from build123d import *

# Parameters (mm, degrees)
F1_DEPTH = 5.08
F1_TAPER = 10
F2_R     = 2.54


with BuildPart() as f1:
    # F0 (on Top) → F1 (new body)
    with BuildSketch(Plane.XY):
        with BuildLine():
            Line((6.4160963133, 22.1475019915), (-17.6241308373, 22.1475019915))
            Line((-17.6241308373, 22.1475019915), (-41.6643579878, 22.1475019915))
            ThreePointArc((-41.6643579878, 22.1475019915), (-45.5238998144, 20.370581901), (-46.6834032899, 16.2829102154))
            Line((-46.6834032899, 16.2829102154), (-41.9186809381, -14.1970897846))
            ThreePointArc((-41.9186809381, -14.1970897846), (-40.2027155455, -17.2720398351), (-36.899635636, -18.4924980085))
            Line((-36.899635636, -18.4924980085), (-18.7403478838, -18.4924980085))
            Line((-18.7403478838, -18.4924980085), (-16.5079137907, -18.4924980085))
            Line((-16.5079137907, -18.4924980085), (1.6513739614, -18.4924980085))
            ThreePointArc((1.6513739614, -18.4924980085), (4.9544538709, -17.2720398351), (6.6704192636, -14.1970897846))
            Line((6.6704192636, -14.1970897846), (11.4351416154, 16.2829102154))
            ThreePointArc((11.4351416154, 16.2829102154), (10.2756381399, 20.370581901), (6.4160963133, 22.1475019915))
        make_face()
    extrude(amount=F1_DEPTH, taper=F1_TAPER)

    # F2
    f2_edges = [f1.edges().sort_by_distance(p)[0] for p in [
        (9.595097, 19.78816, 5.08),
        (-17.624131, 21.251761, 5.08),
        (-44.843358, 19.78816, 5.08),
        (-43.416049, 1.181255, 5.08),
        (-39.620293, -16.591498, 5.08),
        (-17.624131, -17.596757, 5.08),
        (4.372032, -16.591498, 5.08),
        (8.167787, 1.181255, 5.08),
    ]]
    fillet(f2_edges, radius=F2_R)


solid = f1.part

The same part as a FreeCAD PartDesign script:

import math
import FreeCAD as App
import Part
import Sketcher

V = App.Vector
Q = App.Units.Quantity


def edges_at(feature, points):
    """Names of the edges that pass closest to the given points."""
    edges = feature.Shape.Edges
    near = lambda p: min(range(len(edges)), key=lambda i: edges[i].distToShape(Part.Vertex(*p))[0])
    return sorted({f"Edge{near(p) + 1}" for p in points})

doc = App.newDocument("Part")
body = doc.addObject("PartDesign::Body", "Body")

sketch1 = body.newObject("Sketcher::SketchObject", "Sketch")
sketch1.AttachmentSupport = (doc.getObject("XY_Plane"), [""])
sketch1.MapMode = "FlatFace"
sketch1.addGeometry([
    Part.LineSegment(V(6, 22, 0), V(-42, 22, 0)),
    Part.ArcOfCircle(Part.Circle(V(-42, 17, 0), V(0, 0, 1), 5), math.radians(90), math.radians(189)),
    Part.LineSegment(V(-47, 16, 0), V(-42, -14, 0)),
    Part.ArcOfCircle(Part.Circle(V(-37, -13, 0), V(0, 0, 1), 5), math.radians(-171), math.radians(-90)),
    Part.LineSegment(V(-37, -18, 0), V(2, -18, 0)),
    Part.ArcOfCircle(Part.Circle(V(2, -13, 0), V(0, 0, 1), 5), math.radians(-90), math.radians(-9)),
    Part.LineSegment(V(7, -14, 0), V(11, 16, 0)),
    Part.ArcOfCircle(Part.Circle(V(6, 17, 0), V(0, 0, 1), 5), math.radians(-9), math.radians(90)),
], False)
sketch1.addConstraint([
    Sketcher.Constraint("Tangent", 0, 2, 1, 1),
    Sketcher.Constraint("Tangent", 1, 2, 2, 1),
    Sketcher.Constraint("Tangent", 2, 2, 3, 1),
    Sketcher.Constraint("Tangent", 3, 2, 4, 1),
    Sketcher.Constraint("Tangent", 4, 2, 5, 1),
    Sketcher.Constraint("Tangent", 5, 2, 6, 1),
    Sketcher.Constraint("Tangent", 6, 2, 7, 1),
    Sketcher.Constraint("Tangent", 7, 2, 0, 1),
    Sketcher.Constraint("Horizontal", 0),
    Sketcher.Constraint("Horizontal", 4),
    Sketcher.Constraint("Equal", 1, 3),
    Sketcher.Constraint("Equal", 3, 5),
    Sketcher.Constraint("Equal", 5, 7),
    Sketcher.Constraint("Horizontal", 2, 2, 5, 2),
    Sketcher.Constraint("Radius", 1, Q("0.2 in")),
    Sketcher.Constraint("DistanceY", 3, 3, 1, 3, Q("1.2 in")),
    Sketcher.Constraint("DistanceX", 4, 1, 4, 2, Q("38.55101 mm")),
    Sketcher.Constraint("DistanceY", -1, 1, 1, 3, Q("17.067502 mm")),
    Sketcher.Constraint("DistanceX", 1, 2, 7, 3, Q("53.0995 mm")),
    Sketcher.Constraint("DistanceX", 2, 2, -1, 1, Q("41.918681 mm")),
])
pad1 = body.newObject("PartDesign::Pad", "Pad")
pad1.Profile = sketch1
pad1.Length = Q("0.2 in")
pad1.TaperAngle = -10
doc.recompute()

fillet = body.newObject("PartDesign::Fillet", "Fillet")
fillet.Base = (pad1, edges_at(pad1, [
    (9.595, 19.788, 5.08),
    (-17.624, 21.252, 5.08),
    (-44.843, 19.788, 5.08),
    (-43.416, 1.181, 5.08),
    (-39.62, -16.591, 5.08),
    (-17.624, -17.597, 5.08),
    (4.372, -16.591, 5.08),
    (8.168, 1.181, 5.08),
]))
fillet.Radius = Q("0.1 in")

doc.recompute()
